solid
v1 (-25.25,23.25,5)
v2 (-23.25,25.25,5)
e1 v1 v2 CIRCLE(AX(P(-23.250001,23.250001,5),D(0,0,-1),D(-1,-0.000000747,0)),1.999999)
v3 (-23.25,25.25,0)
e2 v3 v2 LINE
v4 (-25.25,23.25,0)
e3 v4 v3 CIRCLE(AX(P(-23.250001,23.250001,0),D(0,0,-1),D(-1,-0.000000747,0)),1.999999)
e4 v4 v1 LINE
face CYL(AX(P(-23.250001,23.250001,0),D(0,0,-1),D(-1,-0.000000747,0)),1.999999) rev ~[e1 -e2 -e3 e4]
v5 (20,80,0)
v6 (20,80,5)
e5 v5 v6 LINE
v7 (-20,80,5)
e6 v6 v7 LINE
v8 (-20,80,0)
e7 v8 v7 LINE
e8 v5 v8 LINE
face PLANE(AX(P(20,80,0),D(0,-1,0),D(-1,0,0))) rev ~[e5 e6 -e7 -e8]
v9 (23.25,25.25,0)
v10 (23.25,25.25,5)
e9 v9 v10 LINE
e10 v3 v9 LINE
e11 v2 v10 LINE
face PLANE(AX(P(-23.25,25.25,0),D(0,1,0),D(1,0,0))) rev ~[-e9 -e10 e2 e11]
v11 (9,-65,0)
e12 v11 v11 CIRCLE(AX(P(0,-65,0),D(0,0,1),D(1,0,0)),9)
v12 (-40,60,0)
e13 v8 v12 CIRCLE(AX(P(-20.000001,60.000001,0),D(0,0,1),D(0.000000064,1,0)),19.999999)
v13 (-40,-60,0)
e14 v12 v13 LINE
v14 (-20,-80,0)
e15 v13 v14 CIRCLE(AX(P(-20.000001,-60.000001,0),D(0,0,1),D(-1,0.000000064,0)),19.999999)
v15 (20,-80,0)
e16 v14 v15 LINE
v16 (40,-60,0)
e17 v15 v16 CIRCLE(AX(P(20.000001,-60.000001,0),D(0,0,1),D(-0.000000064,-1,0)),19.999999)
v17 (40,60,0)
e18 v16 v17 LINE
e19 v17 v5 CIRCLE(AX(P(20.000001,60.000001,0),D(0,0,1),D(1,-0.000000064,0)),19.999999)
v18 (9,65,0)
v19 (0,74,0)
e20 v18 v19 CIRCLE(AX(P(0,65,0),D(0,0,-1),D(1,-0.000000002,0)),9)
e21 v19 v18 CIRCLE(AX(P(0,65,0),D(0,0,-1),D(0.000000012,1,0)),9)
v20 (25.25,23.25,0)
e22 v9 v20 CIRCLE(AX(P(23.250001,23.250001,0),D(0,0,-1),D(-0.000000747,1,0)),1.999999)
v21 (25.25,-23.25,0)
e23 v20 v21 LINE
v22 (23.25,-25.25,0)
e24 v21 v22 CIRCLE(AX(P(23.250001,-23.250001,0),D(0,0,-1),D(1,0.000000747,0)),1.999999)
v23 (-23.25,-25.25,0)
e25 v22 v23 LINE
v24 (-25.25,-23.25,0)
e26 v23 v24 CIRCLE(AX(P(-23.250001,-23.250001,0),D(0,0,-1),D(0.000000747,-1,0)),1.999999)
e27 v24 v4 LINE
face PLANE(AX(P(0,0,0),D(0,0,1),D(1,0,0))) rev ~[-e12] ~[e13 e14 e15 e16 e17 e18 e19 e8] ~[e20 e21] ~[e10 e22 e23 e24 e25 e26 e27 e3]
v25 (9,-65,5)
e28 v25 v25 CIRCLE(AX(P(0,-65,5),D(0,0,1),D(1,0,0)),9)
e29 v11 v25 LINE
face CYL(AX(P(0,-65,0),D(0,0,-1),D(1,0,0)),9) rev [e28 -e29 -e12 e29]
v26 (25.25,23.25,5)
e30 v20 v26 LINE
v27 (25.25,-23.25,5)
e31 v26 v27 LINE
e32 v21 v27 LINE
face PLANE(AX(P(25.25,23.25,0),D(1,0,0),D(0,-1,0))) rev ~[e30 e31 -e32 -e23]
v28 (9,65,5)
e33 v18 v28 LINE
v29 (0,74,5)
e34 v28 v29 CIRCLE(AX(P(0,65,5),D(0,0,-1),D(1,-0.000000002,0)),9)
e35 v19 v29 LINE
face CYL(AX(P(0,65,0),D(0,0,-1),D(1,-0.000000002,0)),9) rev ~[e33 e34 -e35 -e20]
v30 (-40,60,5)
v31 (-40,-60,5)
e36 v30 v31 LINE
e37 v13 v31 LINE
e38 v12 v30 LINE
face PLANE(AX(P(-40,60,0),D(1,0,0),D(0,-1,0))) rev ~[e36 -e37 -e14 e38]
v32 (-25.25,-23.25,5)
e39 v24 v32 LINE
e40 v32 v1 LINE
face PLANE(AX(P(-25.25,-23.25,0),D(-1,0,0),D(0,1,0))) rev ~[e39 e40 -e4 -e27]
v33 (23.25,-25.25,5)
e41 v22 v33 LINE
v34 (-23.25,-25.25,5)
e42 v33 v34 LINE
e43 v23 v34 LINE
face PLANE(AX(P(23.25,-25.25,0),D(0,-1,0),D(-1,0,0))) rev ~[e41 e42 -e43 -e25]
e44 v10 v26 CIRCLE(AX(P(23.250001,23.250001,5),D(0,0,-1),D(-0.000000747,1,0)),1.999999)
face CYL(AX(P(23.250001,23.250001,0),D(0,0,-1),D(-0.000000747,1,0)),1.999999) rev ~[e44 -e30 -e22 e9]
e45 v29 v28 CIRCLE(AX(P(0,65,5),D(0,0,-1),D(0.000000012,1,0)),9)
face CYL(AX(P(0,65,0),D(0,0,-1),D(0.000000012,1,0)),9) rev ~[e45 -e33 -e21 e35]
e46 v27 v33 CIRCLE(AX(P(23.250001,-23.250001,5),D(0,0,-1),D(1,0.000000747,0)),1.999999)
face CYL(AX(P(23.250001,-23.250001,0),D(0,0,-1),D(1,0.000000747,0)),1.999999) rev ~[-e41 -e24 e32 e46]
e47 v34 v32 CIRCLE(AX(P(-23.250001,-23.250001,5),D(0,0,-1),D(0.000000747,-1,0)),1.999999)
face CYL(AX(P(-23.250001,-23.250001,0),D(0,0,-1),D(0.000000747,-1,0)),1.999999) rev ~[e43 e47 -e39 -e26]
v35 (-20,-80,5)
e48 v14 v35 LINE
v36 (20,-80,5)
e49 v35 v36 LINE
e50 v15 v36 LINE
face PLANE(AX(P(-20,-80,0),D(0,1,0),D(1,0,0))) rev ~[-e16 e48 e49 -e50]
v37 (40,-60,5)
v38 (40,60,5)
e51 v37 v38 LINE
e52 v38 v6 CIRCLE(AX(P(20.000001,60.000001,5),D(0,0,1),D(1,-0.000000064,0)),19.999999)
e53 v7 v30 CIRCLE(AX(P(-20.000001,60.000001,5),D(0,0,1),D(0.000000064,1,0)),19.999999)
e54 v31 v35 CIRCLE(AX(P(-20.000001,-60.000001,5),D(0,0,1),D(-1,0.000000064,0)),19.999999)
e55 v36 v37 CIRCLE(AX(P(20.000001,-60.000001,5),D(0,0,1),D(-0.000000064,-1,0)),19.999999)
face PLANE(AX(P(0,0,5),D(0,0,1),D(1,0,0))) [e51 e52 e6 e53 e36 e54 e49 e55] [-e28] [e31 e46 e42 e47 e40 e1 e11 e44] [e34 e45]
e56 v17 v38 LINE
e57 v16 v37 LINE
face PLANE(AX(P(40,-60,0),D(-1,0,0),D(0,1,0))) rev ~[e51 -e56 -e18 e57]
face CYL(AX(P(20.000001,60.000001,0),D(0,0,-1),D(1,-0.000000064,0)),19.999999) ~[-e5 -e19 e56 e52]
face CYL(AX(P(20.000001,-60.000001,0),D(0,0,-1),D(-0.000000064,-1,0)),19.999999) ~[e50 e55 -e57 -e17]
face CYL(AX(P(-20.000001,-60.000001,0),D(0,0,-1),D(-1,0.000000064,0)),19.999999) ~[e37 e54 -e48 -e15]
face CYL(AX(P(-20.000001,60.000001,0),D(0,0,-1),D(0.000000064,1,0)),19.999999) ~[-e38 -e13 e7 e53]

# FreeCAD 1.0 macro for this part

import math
import FreeCAD as App
import Part
import Sketcher

V = App.Vector

doc = App.newDocument("Part")
body = doc.addObject("PartDesign::Body", "Body")

sketch1 = doc.addObject("Sketcher::SketchObject", "Sketch")
body.addObject(sketch1)
sketch1.AttachmentSupport = (doc.XY_Plane, [""])
sketch1.MapMode = "FlatFace"
sketch1.addGeometry([
    Part.LineSegment(V(20, 80, 0), V(-20, 80, 0)),
    Part.ArcOfCircle(Part.Circle(V(-20.000001, 60.000001, 0), V(0, 0, 1), 19.999999), math.radians(89.999996), math.radians(180.000004)),
    Part.LineSegment(V(-40, 60, 0), V(-40, -60, 0)),
    Part.ArcOfCircle(Part.Circle(V(-20.000001, -60.000001, 0), V(0, 0, 1), 19.999999), math.radians(179.999996), math.radians(270.000004)),
    Part.LineSegment(V(-20, -80, 0), V(20, -80, 0)),
    Part.ArcOfCircle(Part.Circle(V(20.000001, -60.000001, 0), V(0, 0, 1), 19.999999), math.radians(-90.000004), math.radians(0.000004)),
    Part.LineSegment(V(40, -60, 0), V(40, 60, 0)),
    Part.ArcOfCircle(Part.Circle(V(20.000001, 60.000001, 0), V(0, 0, 1), 19.999999), math.radians(-0.000004), math.radians(90.000004)),
    Part.Circle(V(0, -65, 0), V(0, 0, 1), 9),
    Part.LineSegment(V(25.25, 23.25, 0), V(25.25, -23.25, 0)),
    Part.ArcOfCircle(Part.Circle(V(23.250001, -23.250001, 0), V(0, 0, 1), 1.999999), math.radians(-90.000043), math.radians(0.000043)),
    Part.LineSegment(V(23.25, -25.25, 0), V(-23.25, -25.25, 0)),
    Part.ArcOfCircle(Part.Circle(V(-23.250001, -23.250001, 0), V(0, 0, 1), 1.999999), math.radians(179.999957), math.radians(270.000043)),
    Part.LineSegment(V(-25.25, -23.25, 0), V(-25.25, 23.25, 0)),
    Part.ArcOfCircle(Part.Circle(V(-23.250001, 23.250001, 0), V(0, 0, 1), 1.999999), math.radians(89.999957), math.radians(180.000043)),
    Part.LineSegment(V(-23.25, 25.25, 0), V(23.25, 25.25, 0)),
    Part.ArcOfCircle(Part.Circle(V(23.250001, 23.250001, 0), V(0, 0, 1), 1.999999), math.radians(-0.000043), math.radians(90.000043)),
    Part.ArcOfCircle(Part.Circle(V(0, 65, 0), V(0, 0, 1), 9), math.radians(0.000001), math.radians(89.999999)),
    Part.ArcOfCircle(Part.Circle(V(0, 65, 0), V(0, 0, 1), 9), math.radians(90), math.radians(360)),
], False)
sketch1.addConstraint([
    Sketcher.Constraint("Tangent", 0, 2, 1, 1),
    Sketcher.Constraint("Tangent", 1, 2, 2, 1),
    Sketcher.Constraint("Tangent", 2, 2, 3, 1),
    Sketcher.Constraint("Tangent", 3, 2, 4, 1),
    Sketcher.Constraint("Tangent", 4, 2, 5, 1),
    Sketcher.Constraint("Tangent", 5, 2, 6, 1),
    Sketcher.Constraint("Tangent", 6, 2, 7, 1),
    Sketcher.Constraint("Tangent", 7, 2, 0, 1),
    Sketcher.Constraint("Tangent", 9, 2, 10, 2),
    Sketcher.Constraint("Tangent", 10, 1, 11, 1),
    Sketcher.Constraint("Tangent", 11, 2, 12, 2),
    Sketcher.Constraint("Tangent", 12, 1, 13, 1),
    Sketcher.Constraint("Tangent", 13, 2, 14, 2),
    Sketcher.Constraint("Tangent", 14, 1, 15, 1),
    Sketcher.Constraint("Tangent", 15, 2, 16, 2),
    Sketcher.Constraint("Tangent", 16, 1, 9, 1),
    Sketcher.Constraint("Tangent", 17, 1, 18, 2),
    Sketcher.Constraint("Coincident", 18, 1, 17, 2),
    Sketcher.Constraint("Horizontal", 0),
    Sketcher.Constraint("Vertical", 2),
    Sketcher.Constraint("Horizontal", 4),
    Sketcher.Constraint("Vertical", 6),
    Sketcher.Constraint("Vertical", 9),
    Sketcher.Constraint("Horizontal", 11),
    Sketcher.Constraint("Vertical", 13),
    Sketcher.Constraint("Horizontal", 15),
    Sketcher.Constraint("Equal", 1, 3),
    Sketcher.Constraint("Equal", 3, 5),
    Sketcher.Constraint("Equal", 5, 7),
    Sketcher.Constraint("Equal", 10, 12),
    Sketcher.Constraint("Equal", 12, 14),
    Sketcher.Constraint("Equal", 14, 16),
    Sketcher.Constraint("Equal", 8, 17),
    Sketcher.Constraint("Symmetric", 1, 3, 5, 3, -1, 1),
    Sketcher.Constraint("Symmetric", 10, 3, 14, 3, -1, 1),
    Sketcher.Constraint("Symmetric", 8, 3, 17, 3, -1, 1),
    Sketcher.Constraint("PointOnObject", 8, 3, -2),
    Sketcher.Constraint("PointOnObject", 18, 1, -2),
    Sketcher.Constraint("Horizontal", 18, 3, 17, 1),
    Sketcher.Constraint("Equal", 15, 9),
    Sketcher.Constraint("Diameter", 8, 18.0),
    Sketcher.Constraint("Radius", 1, 19.999999),
    Sketcher.Constraint("Radius", 10, 1.999999),
    Sketcher.Constraint("DistanceX", 0, 2, 0, 1, 40.0),
    Sketcher.Constraint("DistanceY", 2, 2, 2, 1, 120.0),
    Sketcher.Constraint("DistanceX", 11, 2, 11, 1, 46.5),
    Sketcher.Constraint("DistanceY", 8, 3, -1, 1, 65.0),
])
pad1 = doc.addObject("PartDesign::Pad", "Pad")
body.addObject(pad1)
pad1.Profile = sketch1
pad1.Length = 5

doc.recompute()
